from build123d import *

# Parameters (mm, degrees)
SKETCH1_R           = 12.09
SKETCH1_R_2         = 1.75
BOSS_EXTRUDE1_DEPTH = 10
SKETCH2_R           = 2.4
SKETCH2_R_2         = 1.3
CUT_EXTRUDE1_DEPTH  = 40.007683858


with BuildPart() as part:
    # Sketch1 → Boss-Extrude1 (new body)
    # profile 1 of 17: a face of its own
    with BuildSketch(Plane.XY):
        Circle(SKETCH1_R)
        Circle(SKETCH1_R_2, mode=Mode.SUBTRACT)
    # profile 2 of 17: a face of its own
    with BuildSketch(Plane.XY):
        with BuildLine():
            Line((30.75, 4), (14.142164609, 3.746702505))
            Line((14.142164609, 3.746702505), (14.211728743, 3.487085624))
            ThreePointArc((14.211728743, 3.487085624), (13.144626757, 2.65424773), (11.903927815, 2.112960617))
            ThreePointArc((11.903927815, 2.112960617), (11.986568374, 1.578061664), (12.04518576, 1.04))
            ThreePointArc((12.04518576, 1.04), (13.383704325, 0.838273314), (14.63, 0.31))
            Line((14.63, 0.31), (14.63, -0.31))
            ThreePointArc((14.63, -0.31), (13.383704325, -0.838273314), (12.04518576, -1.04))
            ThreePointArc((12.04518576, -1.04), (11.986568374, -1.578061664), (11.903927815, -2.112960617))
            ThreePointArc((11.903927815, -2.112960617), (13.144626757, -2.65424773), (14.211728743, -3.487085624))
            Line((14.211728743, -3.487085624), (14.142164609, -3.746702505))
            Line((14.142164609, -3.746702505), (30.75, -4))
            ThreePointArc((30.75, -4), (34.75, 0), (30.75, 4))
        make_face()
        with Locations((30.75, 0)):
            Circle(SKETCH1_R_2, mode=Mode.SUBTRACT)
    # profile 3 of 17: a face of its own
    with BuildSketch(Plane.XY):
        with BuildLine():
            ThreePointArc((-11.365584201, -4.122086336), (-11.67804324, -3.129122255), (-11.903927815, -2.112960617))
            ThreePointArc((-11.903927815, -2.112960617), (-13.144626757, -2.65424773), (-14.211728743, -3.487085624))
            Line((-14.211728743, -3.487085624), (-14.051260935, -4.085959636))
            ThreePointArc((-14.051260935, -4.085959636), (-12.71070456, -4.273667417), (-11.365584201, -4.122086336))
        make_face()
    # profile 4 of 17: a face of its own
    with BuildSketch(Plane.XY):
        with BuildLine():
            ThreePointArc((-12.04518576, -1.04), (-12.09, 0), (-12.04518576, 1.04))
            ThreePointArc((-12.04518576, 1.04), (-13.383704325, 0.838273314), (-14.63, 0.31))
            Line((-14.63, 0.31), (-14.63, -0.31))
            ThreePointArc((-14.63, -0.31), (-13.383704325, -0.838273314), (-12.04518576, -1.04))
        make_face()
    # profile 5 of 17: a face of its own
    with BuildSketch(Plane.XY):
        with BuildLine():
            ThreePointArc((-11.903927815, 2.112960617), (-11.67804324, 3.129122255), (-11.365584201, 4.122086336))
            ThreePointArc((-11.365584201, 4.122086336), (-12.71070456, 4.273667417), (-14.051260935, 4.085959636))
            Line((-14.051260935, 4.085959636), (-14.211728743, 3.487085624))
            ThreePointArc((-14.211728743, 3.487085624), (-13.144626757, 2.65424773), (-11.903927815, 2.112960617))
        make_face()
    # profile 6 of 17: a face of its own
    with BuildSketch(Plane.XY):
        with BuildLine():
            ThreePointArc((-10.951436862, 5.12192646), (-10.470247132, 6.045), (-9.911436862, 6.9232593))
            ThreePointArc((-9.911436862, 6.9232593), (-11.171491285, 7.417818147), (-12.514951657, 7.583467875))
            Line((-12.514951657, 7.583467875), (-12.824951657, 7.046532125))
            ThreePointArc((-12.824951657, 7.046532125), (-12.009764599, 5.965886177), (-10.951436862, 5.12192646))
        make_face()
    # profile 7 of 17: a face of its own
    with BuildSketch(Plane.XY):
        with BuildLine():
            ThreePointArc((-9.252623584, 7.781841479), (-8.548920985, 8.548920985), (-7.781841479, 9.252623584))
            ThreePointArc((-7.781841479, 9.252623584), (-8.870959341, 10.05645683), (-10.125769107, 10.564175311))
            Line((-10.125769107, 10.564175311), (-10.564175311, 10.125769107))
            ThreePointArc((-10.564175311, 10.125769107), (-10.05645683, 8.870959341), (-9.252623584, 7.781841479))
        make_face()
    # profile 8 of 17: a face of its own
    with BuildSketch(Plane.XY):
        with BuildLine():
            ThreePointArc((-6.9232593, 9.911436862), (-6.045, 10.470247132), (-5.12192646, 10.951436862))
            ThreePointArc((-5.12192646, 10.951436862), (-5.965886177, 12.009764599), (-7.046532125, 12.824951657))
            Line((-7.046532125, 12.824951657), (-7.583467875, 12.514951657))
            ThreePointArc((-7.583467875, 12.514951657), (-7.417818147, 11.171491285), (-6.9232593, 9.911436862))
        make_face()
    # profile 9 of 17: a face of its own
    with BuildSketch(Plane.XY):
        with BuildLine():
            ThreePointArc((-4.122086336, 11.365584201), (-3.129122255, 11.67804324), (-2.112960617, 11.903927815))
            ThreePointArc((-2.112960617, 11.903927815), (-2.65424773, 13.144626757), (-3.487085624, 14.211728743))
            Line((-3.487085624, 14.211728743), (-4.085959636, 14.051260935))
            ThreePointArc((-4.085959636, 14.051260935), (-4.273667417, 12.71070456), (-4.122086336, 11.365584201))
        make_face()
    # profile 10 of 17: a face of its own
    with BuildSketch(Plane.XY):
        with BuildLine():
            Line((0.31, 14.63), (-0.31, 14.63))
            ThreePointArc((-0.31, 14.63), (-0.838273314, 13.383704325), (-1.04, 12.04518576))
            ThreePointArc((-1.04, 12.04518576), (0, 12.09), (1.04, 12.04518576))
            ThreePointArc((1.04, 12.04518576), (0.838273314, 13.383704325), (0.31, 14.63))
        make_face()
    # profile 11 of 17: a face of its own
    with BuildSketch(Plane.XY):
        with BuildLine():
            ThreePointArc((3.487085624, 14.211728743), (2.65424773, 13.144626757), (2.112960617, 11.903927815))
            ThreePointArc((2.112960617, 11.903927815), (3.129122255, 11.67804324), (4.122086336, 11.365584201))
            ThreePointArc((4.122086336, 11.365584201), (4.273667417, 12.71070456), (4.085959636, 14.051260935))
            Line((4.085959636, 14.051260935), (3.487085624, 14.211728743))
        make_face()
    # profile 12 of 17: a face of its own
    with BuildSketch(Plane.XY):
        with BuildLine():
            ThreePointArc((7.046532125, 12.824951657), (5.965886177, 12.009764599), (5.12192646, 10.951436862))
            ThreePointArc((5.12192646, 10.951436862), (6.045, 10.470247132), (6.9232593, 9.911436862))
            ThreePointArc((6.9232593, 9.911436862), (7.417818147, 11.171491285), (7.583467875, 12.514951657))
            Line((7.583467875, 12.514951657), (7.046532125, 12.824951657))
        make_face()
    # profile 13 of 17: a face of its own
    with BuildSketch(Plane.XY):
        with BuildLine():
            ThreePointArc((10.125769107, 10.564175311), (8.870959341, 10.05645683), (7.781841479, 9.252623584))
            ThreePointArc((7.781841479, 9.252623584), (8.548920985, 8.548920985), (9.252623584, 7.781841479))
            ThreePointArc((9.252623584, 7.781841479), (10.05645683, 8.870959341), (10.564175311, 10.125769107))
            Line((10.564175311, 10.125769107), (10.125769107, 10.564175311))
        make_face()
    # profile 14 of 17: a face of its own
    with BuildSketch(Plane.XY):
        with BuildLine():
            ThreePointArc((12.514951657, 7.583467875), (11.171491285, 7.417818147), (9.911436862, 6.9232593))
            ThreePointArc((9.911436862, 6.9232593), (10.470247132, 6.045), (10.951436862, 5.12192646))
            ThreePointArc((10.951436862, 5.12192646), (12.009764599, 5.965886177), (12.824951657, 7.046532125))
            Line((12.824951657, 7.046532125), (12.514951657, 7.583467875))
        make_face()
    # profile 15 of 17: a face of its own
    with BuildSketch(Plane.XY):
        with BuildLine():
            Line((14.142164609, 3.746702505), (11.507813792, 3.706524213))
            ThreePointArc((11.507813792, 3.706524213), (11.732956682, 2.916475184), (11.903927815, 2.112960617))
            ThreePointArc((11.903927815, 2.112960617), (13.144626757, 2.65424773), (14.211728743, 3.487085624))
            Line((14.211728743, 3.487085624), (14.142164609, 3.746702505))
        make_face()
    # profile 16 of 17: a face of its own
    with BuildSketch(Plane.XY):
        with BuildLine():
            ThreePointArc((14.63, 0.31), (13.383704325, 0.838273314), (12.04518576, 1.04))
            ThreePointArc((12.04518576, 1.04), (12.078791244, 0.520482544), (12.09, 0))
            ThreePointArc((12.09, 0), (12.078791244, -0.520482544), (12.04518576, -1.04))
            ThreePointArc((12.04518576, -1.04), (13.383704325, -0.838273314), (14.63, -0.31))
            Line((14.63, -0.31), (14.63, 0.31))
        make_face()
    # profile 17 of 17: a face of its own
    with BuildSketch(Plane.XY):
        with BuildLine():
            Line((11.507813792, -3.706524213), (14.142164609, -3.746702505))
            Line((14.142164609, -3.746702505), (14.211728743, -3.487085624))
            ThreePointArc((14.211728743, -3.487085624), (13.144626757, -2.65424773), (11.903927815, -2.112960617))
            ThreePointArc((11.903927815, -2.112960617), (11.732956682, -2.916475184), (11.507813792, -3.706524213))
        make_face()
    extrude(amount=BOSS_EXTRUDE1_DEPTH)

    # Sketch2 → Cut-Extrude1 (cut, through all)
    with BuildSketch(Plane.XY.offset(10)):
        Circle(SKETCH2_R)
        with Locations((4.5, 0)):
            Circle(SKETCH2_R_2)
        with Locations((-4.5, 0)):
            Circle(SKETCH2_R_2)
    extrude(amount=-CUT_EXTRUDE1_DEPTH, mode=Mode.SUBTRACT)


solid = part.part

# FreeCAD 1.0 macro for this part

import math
import FreeCAD as App
import Part
import Sketcher

V = App.Vector
Q = App.Units.Quantity

doc = App.newDocument("Part")
params = doc.addObject("Spreadsheet::Sheet", "Params")
for row, (alias, value) in enumerate([
    ("sketch1_radius", "4 mm"),
    ("sketch1_diameter", "3.5 mm"),
    ("sketch1_radius2", "5.4 mm"),
    ("sketch1_radius3", "12.09 mm"),
    ("sketch1_width", "0.62 mm"),
    ("pad1_length", "10 mm"),
    ("sketch2_diameter", "4.8 mm"),
    ("sketch2_diameter2", "2.6 mm"),
], start=1):
    params.set(f"A{row}", alias)
    params.set(f"B{row}", "=" + value)
    params.setAlias(f"B{row}", alias)

body = doc.addObject("PartDesign::Body", "Body")

# Sketch on XY plane
sketch1 = body.newObject("Sketcher::SketchObject", "Sketch")
sketch1.AttachmentSupport = (doc.getObject("XY_Plane"), [""])
sketch1.MapMode = "FlatFace"
sketch1.addGeometry(Part.ArcOfCircle(Part.Circle(V(0, 0, 0), V(0, 0, 1), 12.1), math.radians(17.85), math.radians(25.07)), False)
sketch1.addGeometry(Part.ArcOfCircle(Part.Circle(V(8.1, 9.7, 0), V(0, 0, 1), 5.4), math.radians(-59), math.radians(-30)), False)
sketch1.addGeometry(Part.LineSegment(V(12.8, 7, 0), V(12.5, 7.6, 0)), False)
sketch1.addGeometry(Part.ArcOfCircle(Part.Circle(V(12.5, 2.2, 0), V(0, 0, 1), 5.4), math.radians(90), math.radians(119)), False)
sketch1.addGeometry(Part.ArcOfCircle(Part.Circle(V(0, 0, 0), V(0, 0, 1), 12.1), math.radians(34.93), math.radians(40.07)), False)
sketch1.addGeometry(Part.ArcOfCircle(Part.Circle(V(5.3, 11.5, 0), V(0, 0, 1), 5.4), math.radians(-44), math.radians(-15)), False)
sketch1.addGeometry(Part.LineSegment(V(10.6, 10.1, 0), V(10.1, 10.6, 0)), False)
sketch1.addGeometry(Part.ArcOfCircle(Part.Circle(V(11.5, 5.3, 0), V(0, 0, 1), 5.4), math.radians(105), math.radians(134)), False)
sketch1.addGeometry(Part.ArcOfCircle(Part.Circle(V(0, 0, 0), V(0, 0, 1), 12.1), math.radians(49.93), math.radians(55.07)), False)
sketch1.addGeometry(Part.ArcOfCircle(Part.Circle(V(2.2, 12.5, 0), V(0, 0, 1), 5.4), math.radians(-29), math.radians(0)), False)
sketch1.addGeometry(Part.LineSegment(V(7.6, 12.5, 0), V(7, 12.8, 0)), False)
sketch1.addGeometry(Part.ArcOfCircle(Part.Circle(V(9.7, 8.1, 0), V(0, 0, 1), 5.4), math.radians(120), math.radians(149)), False)
sketch1.addGeometry(Part.ArcOfCircle(Part.Circle(V(0, 0, 0), V(0, 0, 1), 12.1), math.radians(64.93), math.radians(70.07)), False)
sketch1.addGeometry(Part.ArcOfCircle(Part.Circle(V(-1.1, 12.6, 0), V(0, 0, 1), 5.4), math.radians(-14), math.radians(15)), False)
sketch1.addGeometry(Part.LineSegment(V(4.1, 14.1, 0), V(3.5, 14.2, 0)), False)
sketch1.addGeometry(Part.ArcOfCircle(Part.Circle(V(7.3, 10.4, 0), V(0, 0, 1), 5.4), math.radians(135), math.radians(164)), False)
sketch1.addGeometry(Part.ArcOfCircle(Part.Circle(V(0, 0, 0), V(0, 0, 1), 12.1), math.radians(79.93), math.radians(85.07)), False)
sketch1.addGeometry(Part.ArcOfCircle(Part.Circle(V(-4.4, 11.9, 0), V(0, 0, 1), 5.4), math.radians(1), math.radians(30)), False)
sketch1.addGeometry(Part.LineSegment(V(0.3, 14.6, 0), V(-0.3, 14.6, 0)), False)
sketch1.addGeometry(Part.ArcOfCircle(Part.Circle(V(4.4, 11.9, 0), V(0, 0, 1), 5.4), math.radians(150), math.radians(179)), False)
sketch1.addGeometry(Part.ArcOfCircle(Part.Circle(V(0, 0, 0), V(0, 0, 1), 12.1), math.radians(94.93), math.radians(100.07)), False)
sketch1.addGeometry(Part.ArcOfCircle(Part.Circle(V(-7.3, 10.4, 0), V(0, 0, 1), 5.4), math.radians(16), math.radians(45)), False)
sketch1.addGeometry(Part.LineSegment(V(-3.5, 14.2, 0), V(-4.1, 14.1, 0)), False)
sketch1.addGeometry(Part.ArcOfCircle(Part.Circle(V(1.1, 12.6, 0), V(0, 0, 1), 5.4), math.radians(165), math.radians(194)), False)
sketch1.addGeometry(Part.ArcOfCircle(Part.Circle(V(0, 0, 0), V(0, 0, 1), 12.1), math.radians(109.93), math.radians(115.07)), False)
sketch1.addGeometry(Part.ArcOfCircle(Part.Circle(V(-9.7, 8.1, 0), V(0, 0, 1), 5.4), math.radians(31), math.radians(60)), False)
sketch1.addGeometry(Part.LineSegment(V(-7, 12.8, 0), V(-7.6, 12.5, 0)), False)
sketch1.addGeometry(Part.ArcOfCircle(Part.Circle(V(-2.2, 12.5, 0), V(0, 0, 1), 5.4), math.radians(180), math.radians(209)), False)
sketch1.addGeometry(Part.ArcOfCircle(Part.Circle(V(0, 0, 0), V(0, 0, 1), 12.1), math.radians(124.93), math.radians(130.07)), False)
sketch1.addGeometry(Part.ArcOfCircle(Part.Circle(V(-11.5, 5.3, 0), V(0, 0, 1), 5.4), math.radians(46), math.radians(75)), False)
sketch1.addGeometry(Part.LineSegment(V(-10.1, 10.6, 0), V(-10.6, 10.1, 0)), False)
sketch1.addGeometry(Part.ArcOfCircle(Part.Circle(V(-5.3, 11.5, 0), V(0, 0, 1), 5.4), math.radians(-165), math.radians(-136)), False)
sketch1.addGeometry(Part.ArcOfCircle(Part.Circle(V(0, 0, 0), V(0, 0, 1), 12.1), math.radians(139.93), math.radians(145.07)), False)
sketch1.addGeometry(Part.ArcOfCircle(Part.Circle(V(-12.5, 2.2, 0), V(0, 0, 1), 5.4), math.radians(61), math.radians(90)), False)
sketch1.addGeometry(Part.LineSegment(V(-12.5, 7.6, 0), V(-12.8, 7, 0)), False)
sketch1.addGeometry(Part.ArcOfCircle(Part.Circle(V(-8.1, 9.7, 0), V(0, 0, 1), 5.4), math.radians(-150), math.radians(-121)), False)
sketch1.addGeometry(Part.ArcOfCircle(Part.Circle(V(0, 0, 0), V(0, 0, 1), 12.1), math.radians(154.93), math.radians(160.07)), False)
sketch1.addGeometry(Part.ArcOfCircle(Part.Circle(V(-12.6, -1.1, 0), V(0, 0, 1), 5.4), math.radians(76), math.radians(105)), False)
sketch1.addGeometry(Part.LineSegment(V(-14.1, 4.1, 0), V(-14.2, 3.5, 0)), False)
sketch1.addGeometry(Part.ArcOfCircle(Part.Circle(V(-10.4, 7.3, 0), V(0, 0, 1), 5.4), math.radians(-135), math.radians(-106)), False)
sketch1.addGeometry(Part.ArcOfCircle(Part.Circle(V(0, 0, 0), V(0, 0, 1), 12.1), math.radians(169.93), math.radians(175.07)), False)
sketch1.addGeometry(Part.ArcOfCircle(Part.Circle(V(-11.9, -4.4, 0), V(0, 0, 1), 5.4), math.radians(91), math.radians(120)), False)
sketch1.addGeometry(Part.LineSegment(V(-14.6, 0.3, 0), V(-14.6, -0.3, 0)), False)
sketch1.addGeometry(Part.ArcOfCircle(Part.Circle(V(-11.9, 4.4, 0), V(0, 0, 1), 5.4), math.radians(-120), math.radians(-91)), False)
sketch1.addGeometry(Part.ArcOfCircle(Part.Circle(V(0, 0, 0), V(0, 0, 1), 12.1), math.radians(-175.07), math.radians(-169.93)), False)
sketch1.addGeometry(Part.ArcOfCircle(Part.Circle(V(-10.4, -7.3, 0), V(0, 0, 1), 5.4), math.radians(106), math.radians(135)), False)
sketch1.addGeometry(Part.LineSegment(V(-14.2, -3.5, 0), V(-14.1, -4.1, 0)), False)
sketch1.addGeometry(Part.ArcOfCircle(Part.Circle(V(-12.6, 1.1, 0), V(0, 0, 1), 5.4), math.radians(-105), math.radians(-76)), False)
sketch1.addGeometry(Part.ArcOfCircle(Part.Circle(V(0, 0, 0), V(0, 0, 1), 12.1), math.radians(-160), math.radians(-18)), False)
sketch1.addGeometry(Part.LineSegment(V(11.5, -3.7, 0), V(14.1, -3.7, 0)), False)
sketch1.addGeometry(Part.LineSegment(V(14.1, -3.7, 0), V(30.8, -4, 0)), False)
sketch1.addGeometry(Part.ArcOfCircle(Part.Circle(V(30.8, 0, 0), V(0, 0, 1), 4), math.radians(-90), math.radians(90)), False)
sketch1.addGeometry(Part.LineSegment(V(30.8, 4, 0), V(14.1, 3.7, 0)), False)
sketch1.addGeometry(Part.LineSegment(V(14.1, 3.7, 0), V(11.5, 3.7, 0)), False)
sketch1.addGeometry(Part.Circle(V(0, 0, 0), V(0, 0, 1), 1.8), False)
sketch1.addGeometry(Part.Circle(V(30.8, 0, 0), V(0, 0, 1), 1.8), False)
sketch1.addConstraint(Sketcher.Constraint("Coincident", 0, 2, 1, 1))
sketch1.addConstraint(Sketcher.Constraint("Coincident", 1, 2, 2, 1))
sketch1.addConstraint(Sketcher.Constraint("Coincident", 2, 2, 3, 1))
sketch1.addConstraint(Sketcher.Constraint("Coincident", 3, 2, 4, 1))
sketch1.addConstraint(Sketcher.Constraint("Coincident", 4, 2, 5, 1))
sketch1.addConstraint(Sketcher.Constraint("Coincident", 5, 2, 6, 1))
sketch1.addConstraint(Sketcher.Constraint("Coincident", 6, 2, 7, 1))
sketch1.addConstraint(Sketcher.Constraint("Coincident", 7, 2, 8, 1))
sketch1.addConstraint(Sketcher.Constraint("Coincident", 8, 2, 9, 1))
sketch1.addConstraint(Sketcher.Constraint("Coincident", 9, 2, 10, 1))
sketch1.addConstraint(Sketcher.Constraint("Coincident", 10, 2, 11, 1))
sketch1.addConstraint(Sketcher.Constraint("Coincident", 11, 2, 12, 1))
sketch1.addConstraint(Sketcher.Constraint("Coincident", 12, 2, 13, 1))
sketch1.addConstraint(Sketcher.Constraint("Coincident", 13, 2, 14, 1))
sketch1.addConstraint(Sketcher.Constraint("Coincident", 14, 2, 15, 1))
sketch1.addConstraint(Sketcher.Constraint("Coincident", 15, 2, 16, 1))
sketch1.addConstraint(Sketcher.Constraint("Coincident", 16, 2, 17, 1))
sketch1.addConstraint(Sketcher.Constraint("Coincident", 17, 2, 18, 1))
sketch1.addConstraint(Sketcher.Constraint("Coincident", 18, 2, 19, 1))
sketch1.addConstraint(Sketcher.Constraint("Coincident", 19, 2, 20, 1))
sketch1.addConstraint(Sketcher.Constraint("Coincident", 20, 2, 21, 1))
sketch1.addConstraint(Sketcher.Constraint("Coincident", 21, 2, 22, 1))
sketch1.addConstraint(Sketcher.Constraint("Coincident", 22, 2, 23, 1))
sketch1.addConstraint(Sketcher.Constraint("Coincident", 23, 2, 24, 1))
sketch1.addConstraint(Sketcher.Constraint("Coincident", 24, 2, 25, 1))
sketch1.addConstraint(Sketcher.Constraint("Coincident", 25, 2, 26, 1))
sketch1.addConstraint(Sketcher.Constraint("Coincident", 26, 2, 27, 1))
sketch1.addConstraint(Sketcher.Constraint("Coincident", 27, 2, 28, 1))
sketch1.addConstraint(Sketcher.Constraint("Coincident", 28, 2, 29, 1))
sketch1.addConstraint(Sketcher.Constraint("Coincident", 29, 2, 30, 1))
sketch1.addConstraint(Sketcher.Constraint("Coincident", 30, 2, 31, 1))
sketch1.addConstraint(Sketcher.Constraint("Coincident", 31, 2, 32, 1))
sketch1.addConstraint(Sketcher.Constraint("Coincident", 32, 2, 33, 1))
sketch1.addConstraint(Sketcher.Constraint("Coincident", 33, 2, 34, 1))
sketch1.addConstraint(Sketcher.Constraint("Coincident", 34, 2, 35, 1))
sketch1.addConstraint(Sketcher.Constraint("Coincident", 35, 2, 36, 1))
sketch1.addConstraint(Sketcher.Constraint("Coincident", 36, 2, 37, 1))
sketch1.addConstraint(Sketcher.Constraint("Coincident", 37, 2, 38, 1))
sketch1.addConstraint(Sketcher.Constraint("Coincident", 38, 2, 39, 1))
sketch1.addConstraint(Sketcher.Constraint("Coincident", 39, 2, 40, 1))
sketch1.addConstraint(Sketcher.Constraint("Coincident", 40, 2, 41, 1))
sketch1.addConstraint(Sketcher.Constraint("Coincident", 41, 2, 42, 1))
sketch1.addConstraint(Sketcher.Constraint("Coincident", 42, 2, 43, 1))
sketch1.addConstraint(Sketcher.Constraint("Coincident", 43, 2, 44, 1))
sketch1.addConstraint(Sketcher.Constraint("Coincident", 44, 2, 45, 1))
sketch1.addConstraint(Sketcher.Constraint("Coincident", 45, 2, 46, 1))
sketch1.addConstraint(Sketcher.Constraint("Coincident", 46, 2, 47, 1))
sketch1.addConstraint(Sketcher.Constraint("Coincident", 47, 2, 48, 1))
sketch1.addConstraint(Sketcher.Constraint("Coincident", 48, 2, 49, 1))
sketch1.addConstraint(Sketcher.Constraint("Coincident", 49, 2, 50, 1))
sketch1.addConstraint(Sketcher.Constraint("Coincident", 50, 2, 51, 1))
sketch1.addConstraint(Sketcher.Constraint("Coincident", 51, 2, 52, 1))
sketch1.addConstraint(Sketcher.Constraint("Coincident", 52, 2, 53, 1))
sketch1.addConstraint(Sketcher.Constraint("Coincident", 53, 2, 0, 1))
sketch1.addConstraint(Sketcher.Constraint("Horizontal", 18))
sketch1.addConstraint(Sketcher.Constraint("Vertical", 42))
sketch1.addConstraint(Sketcher.Constraint("Coincident", 0, 3, -1, 1))
sketch1.addConstraint(Sketcher.Constraint("Coincident", 4, 3, -1, 1))
sketch1.addConstraint(Sketcher.Constraint("Coincident", 8, 3, -1, 1))
sketch1.addConstraint(Sketcher.Constraint("Coincident", 12, 3, -1, 1))
sketch1.addConstraint(Sketcher.Constraint("Coincident", 16, 3, -1, 1))
sketch1.addConstraint(Sketcher.Constraint("Coincident", 20, 3, -1, 1))
sketch1.addConstraint(Sketcher.Constraint("Coincident", 24, 3, -1, 1))
sketch1.addConstraint(Sketcher.Constraint("Coincident", 28, 3, -1, 1))
sketch1.addConstraint(Sketcher.Constraint("Coincident", 32, 3, -1, 1))
sketch1.addConstraint(Sketcher.Constraint("Coincident", 36, 3, -1, 1))
sketch1.addConstraint(Sketcher.Constraint("Coincident", 40, 3, -1, 1))
sketch1.addConstraint(Sketcher.Constraint("Coincident", 44, 3, -1, 1))
sketch1.addConstraint(Sketcher.Constraint("Coincident", 48, 3, -1, 1))
sketch1.addConstraint(Sketcher.Constraint("Coincident", 54, 3, -1, 1))
sketch1.addConstraint(Sketcher.Constraint("Coincident", 55, 3, 51, 3))
sketch1.addConstraint(Sketcher.Constraint("Equal", 1, 3))
sketch1.addConstraint(Sketcher.Constraint("Equal", 0, 4))
sketch1.addConstraint(Sketcher.Constraint("Equal", 3, 5))
sketch1.addConstraint(Sketcher.Constraint("Equal", 5, 7))
sketch1.addConstraint(Sketcher.Constraint("Equal", 4, 8))
sketch1.addConstraint(Sketcher.Constraint("Equal", 7, 9))
sketch1.addConstraint(Sketcher.Constraint("Equal", 9, 11))
sketch1.addConstraint(Sketcher.Constraint("Equal", 8, 12))
sketch1.addConstraint(Sketcher.Constraint("Equal", 11, 13))
sketch1.addConstraint(Sketcher.Constraint("Equal", 13, 15))
sketch1.addConstraint(Sketcher.Constraint("Equal", 12, 16))
sketch1.addConstraint(Sketcher.Constraint("Equal", 15, 17))
sketch1.addConstraint(Sketcher.Constraint("Equal", 17, 19))
sketch1.addConstraint(Sketcher.Constraint("Equal", 16, 20))
sketch1.addConstraint(Sketcher.Constraint("Equal", 19, 21))
sketch1.addConstraint(Sketcher.Constraint("Equal", 21, 23))
sketch1.addConstraint(Sketcher.Constraint("Equal", 20, 24))
sketch1.addConstraint(Sketcher.Constraint("Equal", 23, 25))
sketch1.addConstraint(Sketcher.Constraint("Equal", 25, 27))
sketch1.addConstraint(Sketcher.Constraint("Equal", 24, 28))
sketch1.addConstraint(Sketcher.Constraint("Equal", 27, 29))
sketch1.addConstraint(Sketcher.Constraint("Equal", 29, 31))
sketch1.addConstraint(Sketcher.Constraint("Equal", 28, 32))
sketch1.addConstraint(Sketcher.Constraint("Equal", 31, 33))
sketch1.addConstraint(Sketcher.Constraint("Equal", 33, 35))
sketch1.addConstraint(Sketcher.Constraint("Equal", 32, 36))
sketch1.addConstraint(Sketcher.Constraint("Equal", 35, 37))
sketch1.addConstraint(Sketcher.Constraint("Equal", 37, 39))
sketch1.addConstraint(Sketcher.Constraint("Equal", 36, 40))
sketch1.addConstraint(Sketcher.Constraint("Equal", 39, 41))
sketch1.addConstraint(Sketcher.Constraint("Equal", 41, 43))
sketch1.addConstraint(Sketcher.Constraint("Equal", 40, 44))
sketch1.addConstraint(Sketcher.Constraint("Equal", 43, 45))
sketch1.addConstraint(Sketcher.Constraint("Equal", 45, 47))
sketch1.addConstraint(Sketcher.Constraint("Equal", 44, 48))
sketch1.addConstraint(Sketcher.Constraint("Equal", 54, 55))
sketch1.addConstraint(Sketcher.Constraint("Symmetric", 17, 3, 19, 3, -2))
sketch1.addConstraint(Sketcher.Constraint("Symmetric", 15, 3, 21, 3, -2))
sketch1.addConstraint(Sketcher.Constraint("Symmetric", 13, 3, 23, 3, -2))
sketch1.addConstraint(Sketcher.Constraint("Symmetric", 11, 3, 25, 3, -2))
sketch1.addConstraint(Sketcher.Constraint("Symmetric", 9, 3, 27, 3, -2))
sketch1.addConstraint(Sketcher.Constraint("Symmetric", 7, 3, 29, 3, -2))
sketch1.addConstraint(Sketcher.Constraint("Symmetric", 5, 3, 31, 3, -2))
sketch1.addConstraint(Sketcher.Constraint("Symmetric", 3, 3, 33, 3, -2))
sketch1.addConstraint(Sketcher.Constraint("Symmetric", 1, 3, 35, 3, -2))
sketch1.addConstraint(Sketcher.Constraint("Symmetric", 41, 3, 43, 3, -1))
sketch1.addConstraint(Sketcher.Constraint("Symmetric", 39, 3, 45, 3, -1))
sketch1.addConstraint(Sketcher.Constraint("Symmetric", 37, 3, 47, 3, -1))
sketch1.addConstraint(Sketcher.Constraint("Symmetric", 50, 2, 51, 2, -1))
sketch1.addConstraint(Sketcher.Constraint("Symmetric", 49, 2, 52, 2, -1))
sketch1.addConstraint(Sketcher.Constraint("Perpendicular", 2, 26))
sketch1.addConstraint(Sketcher.Constraint("Perpendicular", 6, 30))
sketch1.addConstraint(Sketcher.Constraint("Perpendicular", 10, 34))
sketch1.addConstraint(Sketcher.Constraint("Perpendicular", 14, 38))
sketch1.addConstraint(Sketcher.Constraint("Perpendicular", 22, 46))
sketch1.addConstraint(Sketcher.Constraint("Parallel", 49, 50))
sketch1.addConstraint(Sketcher.Constraint("Parallel", 52, 53))
sketch1.addConstraint(Sketcher.Constraint("Horizontal", 14, 2, 21, 2))
sketch1.addConstraint(Sketcher.Constraint("Horizontal", 13, 2, 22, 2))
sketch1.addConstraint(Sketcher.Constraint("Horizontal", 10, 2, 25, 2))
sketch1.addConstraint(Sketcher.Constraint("Horizontal", 9, 2, 26, 2))
sketch1.addConstraint(Sketcher.Constraint("Horizontal", 6, 2, 29, 2))
sketch1.addConstraint(Sketcher.Constraint("Horizontal", 5, 2, 30, 2))
sketch1.addConstraint(Sketcher.Constraint("Horizontal", 1, 2, 34, 2))
sketch1.addConstraint(Sketcher.Constraint("Vertical", 38, 2, 45, 2))
sketch1.addConstraint(Sketcher.Constraint("Vertical", 7, 3, 48, 2))
sketch1.addConstraint(Sketcher.Constraint("Vertical", 55, 3, 50, 2))
sketch1.addConstraint(Sketcher.Constraint("Equal", 18, 42))
sketch1.addConstraint(Sketcher.Constraint("Equal", 2, 6))
sketch1.addConstraint(Sketcher.Constraint("Equal", 6, 10))
sketch1.addConstraint(Sketcher.Constraint("Equal", 10, 14))
sketch1.addConstraint(Sketcher.Constraint("Equal", 34, 38))
sketch1.addConstraint(Sketcher.Constraint("Radius", 51, 4.0))
sketch1.addConstraint(Sketcher.Constraint("Diameter", 54, 3.5))
sketch1.addConstraint(Sketcher.Constraint("Radius", 1, 5.4))
sketch1.addConstraint(Sketcher.Constraint("Angle", 2, Q("120 deg")))
sketch1.addConstraint(Sketcher.Constraint("Angle", 14, Q("165 deg")))
sketch1.addConstraint(Sketcher.Constraint("Radius", 0, 12.09))
sketch1.addConstraint(Sketcher.Constraint("DistanceX", 18, 2, 18, 1, 0.62))
sketch1.addConstraint(Sketcher.Constraint("Distance", 2, 0.62))
sketch1.addConstraint(Sketcher.Constraint("DistanceX", -1, 1, 51, 3, 30.75))
sketch1.addConstraint(Sketcher.Constraint("DistanceX", -1, 1, 16, 2, 1.04))
sketch1.addConstraint(Sketcher.Constraint("DistanceY", -1, 1, 17, 2, 14.63))
sketch1.addConstraint(Sketcher.Constraint("DistanceY", -1, 1, 40, 2, 1.04))
sketch1.addConstraint(Sketcher.Constraint("DistanceX", 41, 2, -1, 1, 14.63))
sketch1.addConstraint(Sketcher.Constraint("DistanceY", -1, 1, 1, 3, 9.732559))
sketch1.addConstraint(Sketcher.Constraint("DistanceX", -1, 1, 3, 3, 12.49883))
sketch1.addConstraint(Sketcher.Constraint("DistanceY", -1, 1, 3, 3, 2.183492))
sketch1.addConstraint(Sketcher.Constraint("DistanceX", -1, 1, 9, 3, 2.183492))
sketch1.addConstraint(Sketcher.Constraint("DistanceY", -1, 1, 9, 3, 12.49883))
sketch1.addConstraint(Sketcher.Constraint("DistanceX", -1, 1, 11, 3, 9.732559))
sketch1.addConstraint(Sketcher.Constraint("DistanceY", -1, 1, 15, 3, 10.38197))
sketch1.addConstraint(Sketcher.Constraint("DistanceX", 39, 3, -1, 1, 10.38197))
sketch1.addConstraint(Sketcher.Constraint("DistanceX", -1, 1, 1, 2, 12.824952))
sketch1.addConstraint(Sketcher.Constraint("DistanceY", -1, 1, 4, 2, 7.781841))
sketch1.addConstraint(Sketcher.Constraint("DistanceY", -1, 1, 5, 2, 10.125769))
sketch1.addConstraint(Sketcher.Constraint("DistanceX", -1, 1, 6, 2, 10.125769))
sketch1.addConstraint(Sketcher.Constraint("DistanceX", -1, 1, 7, 2, 7.781841))
sketch1.addConstraint(Sketcher.Constraint("DistanceY", -1, 1, 9, 2, 12.514952))
sketch1.addConstraint(Sketcher.Constraint("DistanceX", -1, 1, 13, 2, 4.08596))
sketch1.addConstraint(Sketcher.Constraint("DistanceY", -1, 1, 13, 2, 14.051261))
sketch1.addConstraint(Sketcher.Constraint("DistanceX", 37, 2, -1, 1, 14.051261))
sketch1.addConstraint(Sketcher.Constraint("DistanceY", -1, 1, 37, 2, 4.08596))
sketch1.addConstraint(Sketcher.Constraint("Distance", 49, 2.634657))
sketch1.addConstraint(Sketcher.Constraint("DistanceX", 13, 3, -1, 1, 1.125844))
sketch1.addConstraint(Sketcher.Constraint("DistanceX", 37, 3, -1, 1, 12.638072))
sketch1.setExpression("Constraints[143]", "Params.sketch1_radius")
sketch1.setExpression("Constraints[144]", "Params.sketch1_diameter")
sketch1.setExpression("Constraints[145]", "Params.sketch1_radius2")
sketch1.setExpression("Constraints[148]", "Params.sketch1_radius3")
sketch1.setExpression("Constraints[149]", "Params.sketch1_width")
pad1 = body.newObject("PartDesign::Pad", "Pad")
pad1.Profile = sketch1
pad1.setExpression("Length", "Params.pad1_length")

# Sketch on XY plane
sketch2 = body.newObject("Sketcher::SketchObject", "Sketch001")
sketch2.AttachmentSupport = (doc.getObject("XY_Plane"), [""])
sketch2.MapMode = "FlatFace"
sketch2.AttachmentOffset = App.Placement(V(0, 0, 10), App.Rotation())
sketch2.addGeometry(Part.Circle(V(0, 0, 0), V(0, 0, 1), 2.4), False)
sketch2.addGeometry(Part.Circle(V(4.5, 0, 0), V(0, 0, 1), 1.3), False)
sketch2.addGeometry(Part.Circle(V(-4.5, 0, 0), V(0, 0, 1), 1.3), False)
sketch2.addConstraint(Sketcher.Constraint("Coincident", 0, 3, -1, 1))
sketch2.addConstraint(Sketcher.Constraint("Equal", 1, 2))
sketch2.addConstraint(Sketcher.Constraint("Symmetric", 1, 3, 2, 3, -1, 1))
sketch2.addConstraint(Sketcher.Constraint("PointOnObject", 1, 3, -1))
sketch2.addConstraint(Sketcher.Constraint("Diameter", 0, 4.8))
sketch2.addConstraint(Sketcher.Constraint("Diameter", 1, 2.6))
sketch2.addConstraint(Sketcher.Constraint("DistanceX", 2, 3, 1, 3, 9.0))
sketch2.setExpression("Constraints[4]", "Params.sketch2_diameter")
sketch2.setExpression("Constraints[5]", "Params.sketch2_diameter2")
pocket1 = body.newObject("PartDesign::Pocket", "Pocket")
pocket1.Profile = sketch2
pocket1.Type = "ThroughAll"

doc.recompute()
